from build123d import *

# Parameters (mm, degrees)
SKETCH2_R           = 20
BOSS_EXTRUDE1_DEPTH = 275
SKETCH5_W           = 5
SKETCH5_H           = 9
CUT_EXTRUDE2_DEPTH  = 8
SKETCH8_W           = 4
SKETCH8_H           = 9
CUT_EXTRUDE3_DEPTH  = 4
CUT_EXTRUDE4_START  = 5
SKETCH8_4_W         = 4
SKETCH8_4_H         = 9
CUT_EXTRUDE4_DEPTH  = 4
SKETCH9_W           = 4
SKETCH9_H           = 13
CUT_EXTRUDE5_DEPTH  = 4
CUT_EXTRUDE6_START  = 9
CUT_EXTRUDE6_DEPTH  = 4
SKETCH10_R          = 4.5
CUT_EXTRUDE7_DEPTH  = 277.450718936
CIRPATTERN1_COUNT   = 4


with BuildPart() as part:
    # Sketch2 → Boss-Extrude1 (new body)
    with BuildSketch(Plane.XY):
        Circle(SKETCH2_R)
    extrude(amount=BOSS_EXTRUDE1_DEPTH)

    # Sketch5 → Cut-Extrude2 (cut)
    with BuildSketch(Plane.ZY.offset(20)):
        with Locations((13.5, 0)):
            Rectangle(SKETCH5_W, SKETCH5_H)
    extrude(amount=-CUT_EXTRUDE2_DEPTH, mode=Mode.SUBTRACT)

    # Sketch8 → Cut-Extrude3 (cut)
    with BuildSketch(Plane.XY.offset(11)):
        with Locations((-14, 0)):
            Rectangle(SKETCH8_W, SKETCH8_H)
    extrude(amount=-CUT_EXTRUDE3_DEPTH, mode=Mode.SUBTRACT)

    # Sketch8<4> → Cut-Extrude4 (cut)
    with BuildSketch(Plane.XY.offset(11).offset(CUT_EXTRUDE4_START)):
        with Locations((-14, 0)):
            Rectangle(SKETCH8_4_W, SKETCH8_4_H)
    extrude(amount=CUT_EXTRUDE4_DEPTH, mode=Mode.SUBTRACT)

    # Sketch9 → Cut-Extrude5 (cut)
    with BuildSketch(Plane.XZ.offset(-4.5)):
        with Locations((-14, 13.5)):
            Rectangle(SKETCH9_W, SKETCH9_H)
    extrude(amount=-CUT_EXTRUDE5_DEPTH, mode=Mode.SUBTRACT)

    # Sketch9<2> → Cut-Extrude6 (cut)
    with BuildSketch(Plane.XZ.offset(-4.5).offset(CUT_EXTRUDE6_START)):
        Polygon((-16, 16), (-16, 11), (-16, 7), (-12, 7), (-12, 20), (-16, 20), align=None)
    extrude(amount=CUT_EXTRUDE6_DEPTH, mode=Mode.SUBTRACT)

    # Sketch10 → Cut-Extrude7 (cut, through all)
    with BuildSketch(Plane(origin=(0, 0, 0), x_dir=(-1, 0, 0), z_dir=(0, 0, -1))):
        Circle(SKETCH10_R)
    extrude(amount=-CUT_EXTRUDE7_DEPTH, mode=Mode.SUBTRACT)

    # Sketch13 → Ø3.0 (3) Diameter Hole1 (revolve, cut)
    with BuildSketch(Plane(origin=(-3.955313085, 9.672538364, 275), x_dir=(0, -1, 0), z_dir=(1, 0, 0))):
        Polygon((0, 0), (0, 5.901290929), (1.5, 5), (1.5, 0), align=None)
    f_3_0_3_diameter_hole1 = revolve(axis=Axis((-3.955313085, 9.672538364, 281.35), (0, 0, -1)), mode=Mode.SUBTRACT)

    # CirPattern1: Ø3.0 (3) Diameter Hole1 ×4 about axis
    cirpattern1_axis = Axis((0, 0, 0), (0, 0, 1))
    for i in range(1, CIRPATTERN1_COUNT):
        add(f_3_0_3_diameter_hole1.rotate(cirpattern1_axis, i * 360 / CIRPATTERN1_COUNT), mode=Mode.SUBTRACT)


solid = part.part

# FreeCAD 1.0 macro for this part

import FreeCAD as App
import Part
import Sketcher
Q = App.Units.Quantity


def add_polygon(sketch, points):
    """Adds a closed chain of lines whose ends are joined by coincident constraints."""
    first, n = sketch.GeometryCount, len(points)
    for a, b in zip(points, points[1:] + points[:1]):
        sketch.addGeometry(Part.LineSegment(App.Vector(*a, 0), App.Vector(*b, 0)), False)
    for i in range(n):
        sketch.addConstraint(Sketcher.Constraint("Coincident", first + i, 2, first + (i + 1) % n, 1))

doc = App.newDocument("Part")
body = doc.addObject("PartDesign::Body", "Body")

sketch1 = body.newObject("Sketcher::SketchObject", "Sketch")
sketch1.AttachmentSupport = (doc.getObject("XY_Plane"), [""])
sketch1.MapMode = "FlatFace"
sketch1.addGeometry(Part.Circle(App.Vector(0, 0, 0), App.Vector(0, 0, 1), 20), False)
sketch1.addConstraint([
    Sketcher.Constraint("Coincident", 0, 3, -1, 1),
    Sketcher.Constraint("Diameter", 0, 40.0),
])
pad1 = body.newObject("PartDesign::Pad", "Pad")
pad1.Profile = sketch1
pad1.Length = 275

sketch2 = body.newObject("Sketcher::SketchObject", "Sketch001")
sketch2.AttachmentSupport = (doc.getObject("YZ_Plane"), [""])
sketch2.MapMode = "FlatFace"
sketch2.AttachmentOffset = App.Placement(App.Vector(0, 0, -20), App.Rotation())
add_polygon(sketch2, [(4, 11), (-4, 11), (-4, 16), (4, 16)])
sketch2.addConstraint([
    Sketcher.Constraint("Horizontal", 0),
    Sketcher.Constraint("Vertical", 1),
    Sketcher.Constraint("Horizontal", 2),
    Sketcher.Constraint("Vertical", 3),
    Sketcher.Constraint("DistanceX", 0, 2, 0, 1, 9.0),
    Sketcher.Constraint("DistanceY", 1, 1, 1, 2, 5.0),
    Sketcher.Constraint("DistanceY", -1, 1, 0, 2, 11.0),
    Sketcher.Constraint("DistanceX", 0, 2, -1, 1, 4.5),
])
pocket1 = body.newObject("PartDesign::Pocket", "Pocket")
pocket1.Profile = sketch2
pocket1.Length = 8
pocket1.Reversed = True

sketch3 = body.newObject("Sketcher::SketchObject", "Sketch002")
sketch3.AttachmentSupport = (doc.getObject("XY_Plane"), [""])
sketch3.MapMode = "FlatFace"
sketch3.AttachmentOffset = App.Placement(App.Vector(0, 0, 11), App.Rotation())
add_polygon(sketch3, [(-16, 4.5), (-16, -4.5), (-12, -4.5), (-12, 4.5)])
sketch3.addConstraint([
    Sketcher.Constraint("Vertical", 0),
    Sketcher.Constraint("Horizontal", 1),
    Sketcher.Constraint("Vertical", 2),
    Sketcher.Constraint("Horizontal", 3),
    Sketcher.Constraint("DistanceX", 1, 1, 1, 2, 4.0),
    Sketcher.Constraint("DistanceY", 0, 2, 0, 1, 9.0),
    Sketcher.Constraint("DistanceX", 0, 2, -1, 1, 16.0),
    Sketcher.Constraint("DistanceY", 0, 2, -1, 1, 4.5),
])
pocket2 = body.newObject("PartDesign::Pocket", "Pocket001")
pocket2.Profile = sketch3
pocket2.Length = 4

sketch4 = body.newObject("Sketcher::SketchObject", "Sketch003")
sketch4.AttachmentSupport = (doc.getObject("XY_Plane"), [""])
sketch4.MapMode = "FlatFace"
sketch4.AttachmentOffset = App.Placement(App.Vector(0, 0, 16), App.Rotation())
add_polygon(sketch4, [(-16, 4.5), (-16, -4.5), (-12, -4.5), (-12, 4.5)])
sketch4.addConstraint([
    Sketcher.Constraint("Vertical", 0),
    Sketcher.Constraint("Horizontal", 1),
    Sketcher.Constraint("Vertical", 2),
    Sketcher.Constraint("Horizontal", 3),
    Sketcher.Constraint("DistanceX", 1, 1, 1, 2, 4.0),
    Sketcher.Constraint("DistanceY", 0, 2, 0, 1, 9.0),
    Sketcher.Constraint("DistanceX", 0, 2, -1, 1, 16.0),
    Sketcher.Constraint("DistanceY", 0, 2, -1, 1, 4.5),
])
pocket3 = body.newObject("PartDesign::Pocket", "Pocket002")
pocket3.Profile = sketch4
pocket3.Length = 4
pocket3.Reversed = True

sketch5 = body.newObject("Sketcher::SketchObject", "Sketch004")
sketch5.AttachmentSupport = (doc.getObject("XZ_Plane"), [""])
sketch5.MapMode = "FlatFace"
sketch5.AttachmentOffset = App.Placement(App.Vector(0, 0, -4.5), App.Rotation())
add_polygon(sketch5, [(-16, 20), (-16, 7), (-12, 7), (-12, 20)])
sketch5.addConstraint([
    Sketcher.Constraint("Vertical", 0),
    Sketcher.Constraint("Horizontal", 1),
    Sketcher.Constraint("Vertical", 2),
    Sketcher.Constraint("Horizontal", 3),
    Sketcher.Constraint("DistanceX", 1, 1, 1, 2, 4.0),
    Sketcher.Constraint("DistanceY", 0, 2, 0, 1, 13.0),
    Sketcher.Constraint("DistanceX", 0, 2, -1, 1, 16.0),
    Sketcher.Constraint("DistanceY", -1, 1, 0, 2, 7.0),
])
pocket4 = body.newObject("PartDesign::Pocket", "Pocket003")
pocket4.Profile = sketch5
pocket4.Length = 4

sketch6 = body.newObject("Sketcher::SketchObject", "Sketch005")
sketch6.AttachmentSupport = (doc.getObject("XZ_Plane"), [""])
sketch6.MapMode = "FlatFace"
sketch6.AttachmentOffset = App.Placement(App.Vector(0, 0, 4.5), App.Rotation())
add_polygon(sketch6, [(-16, 7), (-12, 7), (-12, 20), (-16, 20)])
sketch6.addConstraint([
    Sketcher.Constraint("Horizontal", 0),
    Sketcher.Constraint("Vertical", 1),
    Sketcher.Constraint("Horizontal", 2),
    Sketcher.Constraint("Vertical", 3),
    Sketcher.Constraint("DistanceX", 0, 1, 0, 2, 4.0),
    Sketcher.Constraint("DistanceY", 1, 1, 1, 2, 13.0),
    Sketcher.Constraint("DistanceX", 0, 2, -1, 1, 12.0),
    Sketcher.Constraint("DistanceY", -1, 1, 0, 2, 7.0),
])
pocket5 = body.newObject("PartDesign::Pocket", "Pocket004")
pocket5.Profile = sketch6
pocket5.Length = 4
pocket5.Reversed = True

sketch7 = body.newObject("Sketcher::SketchObject", "Sketch006")
sketch7.AttachmentSupport = (doc.getObject("XY_Plane"), [""])
sketch7.MapMode = "FlatFace"
sketch7.addGeometry(Part.Circle(App.Vector(0, 0, 0), App.Vector(0, 0, 1), 4.5), False)
sketch7.addConstraint([
    Sketcher.Constraint("Coincident", 0, 3, -1, 1),
    Sketcher.Constraint("Diameter", 0, 9.0),
])
pocket6 = body.newObject("PartDesign::Pocket", "Pocket005")
pocket6.Profile = sketch7
pocket6.Type = "ThroughAll"
pocket6.Reversed = True

sketch8 = body.newObject("Sketcher::SketchObject", "Sketch007")
sketch8.AttachmentSupport = (doc.getObject("YZ_Plane"), [""])
sketch8.MapMode = "FlatFace"
sketch8.AttachmentOffset = App.Placement(App.Vector(0, 0, -3.955313), App.Rotation())
add_polygon(sketch8, [(9.7, 269.1), (9.7, 275), (8.2, 275), (8.2, 270)])
sketch8.addGeometry(Part.LineSegment(App.Vector(9.7, 275, 0), App.Vector(9.7, 269.1, 0)), True)
sketch8.addConstraint([
    Sketcher.Constraint("Vertical", 0),
    Sketcher.Constraint("Horizontal", 1),
    Sketcher.Constraint("Vertical", 2),
    Sketcher.Constraint("Vertical", 4),
    Sketcher.Constraint("Coincident", 4, 1, 0, 2),
    Sketcher.Constraint("Equal", 0, 4),
    Sketcher.Constraint("DistanceY", 2, 2, 2, 1, 5.0),
    Sketcher.Constraint("Angle", 3, Q("-31 deg")),
    Sketcher.Constraint("DistanceX", 1, 2, 1, 1, 1.5),
    Sketcher.Constraint("DistanceY", -1, 1, 0, 2, 275.0),
    Sketcher.Constraint("DistanceX", -1, 1, 0, 2, 9.672538),
])
groove = body.newObject("PartDesign::Groove", "Groove")
groove.Profile = sketch8
groove.ReferenceAxis = (sketch8, ["Axis0"])
groove.Angle = 360
doc.recompute()

polarpattern = body.newObject("PartDesign::PolarPattern", "PolarPattern")
polarpattern.Originals = [groove]
polarpattern.Axis = (doc.getObject("Z_Axis"), [""])
polarpattern.Angle = 360
polarpattern.Occurrences = 4
body.Tip = polarpattern

doc.recompute()
